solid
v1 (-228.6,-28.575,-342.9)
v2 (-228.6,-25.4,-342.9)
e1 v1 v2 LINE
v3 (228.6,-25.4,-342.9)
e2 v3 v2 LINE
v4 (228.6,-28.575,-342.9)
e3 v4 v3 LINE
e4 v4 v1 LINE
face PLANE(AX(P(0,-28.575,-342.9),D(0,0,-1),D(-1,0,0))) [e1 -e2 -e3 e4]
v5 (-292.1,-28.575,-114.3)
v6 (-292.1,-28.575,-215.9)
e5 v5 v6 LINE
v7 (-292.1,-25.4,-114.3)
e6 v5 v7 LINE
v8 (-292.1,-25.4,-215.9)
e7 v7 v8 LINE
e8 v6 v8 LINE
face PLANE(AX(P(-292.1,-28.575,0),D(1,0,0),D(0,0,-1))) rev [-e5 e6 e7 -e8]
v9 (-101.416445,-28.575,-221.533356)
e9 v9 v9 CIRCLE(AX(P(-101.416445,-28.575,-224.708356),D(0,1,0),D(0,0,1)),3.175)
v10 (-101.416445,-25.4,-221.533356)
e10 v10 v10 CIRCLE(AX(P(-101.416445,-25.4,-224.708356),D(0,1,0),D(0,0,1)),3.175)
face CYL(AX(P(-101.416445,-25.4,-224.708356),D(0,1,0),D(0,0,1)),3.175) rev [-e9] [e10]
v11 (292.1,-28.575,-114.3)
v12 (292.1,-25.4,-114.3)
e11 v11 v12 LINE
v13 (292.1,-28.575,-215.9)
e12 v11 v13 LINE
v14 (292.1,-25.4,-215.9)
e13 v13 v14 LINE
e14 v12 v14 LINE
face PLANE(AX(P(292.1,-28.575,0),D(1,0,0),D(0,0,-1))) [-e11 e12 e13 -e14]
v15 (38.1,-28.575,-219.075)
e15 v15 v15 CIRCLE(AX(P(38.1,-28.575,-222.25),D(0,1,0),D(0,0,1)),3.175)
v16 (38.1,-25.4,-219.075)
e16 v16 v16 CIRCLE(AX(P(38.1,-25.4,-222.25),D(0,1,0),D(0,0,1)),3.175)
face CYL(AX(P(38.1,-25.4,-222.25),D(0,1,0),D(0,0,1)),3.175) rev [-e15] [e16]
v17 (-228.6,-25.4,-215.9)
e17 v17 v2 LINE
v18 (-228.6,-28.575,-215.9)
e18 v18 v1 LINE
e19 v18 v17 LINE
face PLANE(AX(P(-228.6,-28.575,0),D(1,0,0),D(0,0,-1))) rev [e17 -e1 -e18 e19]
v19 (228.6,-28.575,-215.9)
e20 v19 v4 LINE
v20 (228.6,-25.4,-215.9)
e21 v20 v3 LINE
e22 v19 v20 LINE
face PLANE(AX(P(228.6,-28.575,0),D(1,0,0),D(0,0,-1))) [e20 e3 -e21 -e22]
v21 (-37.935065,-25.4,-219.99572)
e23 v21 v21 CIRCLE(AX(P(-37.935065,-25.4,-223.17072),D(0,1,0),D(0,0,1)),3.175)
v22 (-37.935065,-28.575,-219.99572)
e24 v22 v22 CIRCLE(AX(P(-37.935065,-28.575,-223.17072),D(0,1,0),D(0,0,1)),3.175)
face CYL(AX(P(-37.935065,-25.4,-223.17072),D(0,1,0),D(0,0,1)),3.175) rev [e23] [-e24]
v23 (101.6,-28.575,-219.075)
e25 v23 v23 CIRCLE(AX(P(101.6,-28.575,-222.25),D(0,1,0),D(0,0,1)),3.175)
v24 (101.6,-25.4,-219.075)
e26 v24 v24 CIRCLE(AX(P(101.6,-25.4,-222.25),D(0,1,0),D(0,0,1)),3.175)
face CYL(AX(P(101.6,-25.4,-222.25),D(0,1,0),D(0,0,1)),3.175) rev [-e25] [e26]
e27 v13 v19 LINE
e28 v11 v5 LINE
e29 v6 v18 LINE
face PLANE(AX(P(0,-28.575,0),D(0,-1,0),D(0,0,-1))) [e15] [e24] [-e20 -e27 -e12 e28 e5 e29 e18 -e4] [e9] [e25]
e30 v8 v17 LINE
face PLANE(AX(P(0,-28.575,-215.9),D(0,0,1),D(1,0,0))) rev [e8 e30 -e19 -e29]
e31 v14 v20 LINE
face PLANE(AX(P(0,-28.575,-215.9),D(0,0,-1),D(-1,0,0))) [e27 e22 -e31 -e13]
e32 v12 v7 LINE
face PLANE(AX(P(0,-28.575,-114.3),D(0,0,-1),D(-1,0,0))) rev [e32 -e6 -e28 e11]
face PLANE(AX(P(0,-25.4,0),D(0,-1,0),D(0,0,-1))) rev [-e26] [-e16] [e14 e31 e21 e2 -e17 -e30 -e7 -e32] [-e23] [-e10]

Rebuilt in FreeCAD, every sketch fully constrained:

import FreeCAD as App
import Part
import Sketcher
from FreeCAD import Vector
Q = App.Units.Quantity

doc = App.newDocument("Part")
body = doc.addObject("PartDesign::Body", "Body")

sketch1 = body.newObject("Sketcher::SketchObject", "Sketch")
sketch1.AttachmentSupport = (doc.getObject("XZ_Plane"), [""])
sketch1.MapMode = "FlatFace"
sketch1.AttachmentOffset = App.Placement(Vector(0, 0, 1 * 25.4), App.Rotation())
sketch1.addGeometry(Part.LineSegment(Vector(292, -216, 0), Vector(292, -114, 0)), False)
sketch1.addGeometry(Part.LineSegment(Vector(292, -114, 0), Vector(-292, -114, 0)), False)
sketch1.addGeometry(Part.LineSegment(Vector(-292, -114, 0), Vector(-292, -216, 0)), False)
sketch1.addGeometry(Part.LineSegment(Vector(-292, -216, 0), Vector(-229, -216, 0)), False)
sketch1.addGeometry(Part.LineSegment(Vector(-229, -216, 0), Vector(-229, -343, 0)), False)
sketch1.addGeometry(Part.LineSegment(Vector(-229, -343, 0), Vector(229, -343, 0)), False)
sketch1.addGeometry(Part.LineSegment(Vector(229, -343, 0), Vector(229, -216, 0)), False)
sketch1.addGeometry(Part.LineSegment(Vector(229, -216, 0), Vector(292, -216, 0)), False)
sketch1.addConstraint(Sketcher.Constraint("Coincident", 0, 2, 1, 1))
sketch1.addConstraint(Sketcher.Constraint("Coincident", 1, 2, 2, 1))
sketch1.addConstraint(Sketcher.Constraint("Coincident", 2, 2, 3, 1))
sketch1.addConstraint(Sketcher.Constraint("Coincident", 3, 2, 4, 1))
sketch1.addConstraint(Sketcher.Constraint("Coincident", 4, 2, 5, 1))
sketch1.addConstraint(Sketcher.Constraint("Coincident", 5, 2, 6, 1))
sketch1.addConstraint(Sketcher.Constraint("Coincident", 6, 2, 7, 1))
sketch1.addConstraint(Sketcher.Constraint("Coincident", 7, 2, 0, 1))
sketch1.addConstraint(Sketcher.Constraint("Vertical", 0))
sketch1.addConstraint(Sketcher.Constraint("Horizontal", 1))
sketch1.addConstraint(Sketcher.Constraint("Vertical", 2))
sketch1.addConstraint(Sketcher.Constraint("Horizontal", 3))
sketch1.addConstraint(Sketcher.Constraint("Vertical", 4))
sketch1.addConstraint(Sketcher.Constraint("Horizontal", 5))
sketch1.addConstraint(Sketcher.Constraint("Vertical", 6))
sketch1.addConstraint(Sketcher.Constraint("Horizontal", 7))
sketch1.addConstraint(Sketcher.Constraint("Symmetric", 3, 2, 6, 2, -2))
sketch1.addConstraint(Sketcher.Constraint("Equal", 3, 7))
sketch1.addConstraint(Sketcher.Constraint("DistanceX", 1, 2, 1, 1, Q("23 in")))
sketch1.addConstraint(Sketcher.Constraint("DistanceX", 5, 1, 5, 2, Q("18 in")))
sketch1.addConstraint(Sketcher.Constraint("DistanceY", 0, 1, 0, 2, Q("4 in")))
sketch1.addConstraint(Sketcher.Constraint("DistanceY", 4, 2, 4, 1, Q("5 in")))
sketch1.addConstraint(Sketcher.Constraint("DistanceY", 0, 2, -1, 1, Q("4.5 in")))
pad1 = body.newObject("PartDesign::Pad", "Pad")
pad1.Profile = sketch1
pad1.Length = Q("0.125 in")

sketch2 = body.newObject("Sketcher::SketchObject", "Sketch001")
sketch2.AttachmentSupport = (doc.getObject("XZ_Plane"), [""])
sketch2.MapMode = "FlatFace"
sketch2.AttachmentOffset = App.Placement(Vector(0, 0, 1 * 25.4), App.Rotation())
sketch2.addGeometry(Part.Circle(Vector(-37.9, -223.2, 0), Vector(0, 0, 1), 3.2), False)
sketch2.addGeometry(Part.Circle(Vector(-101.4, -224.7, 0), Vector(0, 0, 1), 3.2), False)
sketch2.addGeometry(Part.Circle(Vector(38.1, -222.2, 0), Vector(0, 0, 1), 3.2), False)
sketch2.addGeometry(Part.Circle(Vector(101.6, -222.2, 0), Vector(0, 0, 1), 3.2), False)
sketch2.addConstraint(Sketcher.Constraint("Equal", 0, 1))
sketch2.addConstraint(Sketcher.Constraint("Equal", 1, 2))
sketch2.addConstraint(Sketcher.Constraint("Equal", 2, 3))
sketch2.addConstraint(Sketcher.Constraint("Horizontal", 2, 3, 3, 3))
sketch2.addConstraint(Sketcher.Constraint("Diameter", 0, Q("0.25 in")))
sketch2.addConstraint(Sketcher.Constraint("DistanceX", -1, 1, 3, 3, Q("4 in")))
sketch2.addConstraint(Sketcher.Constraint("DistanceX", -1, 1, 2, 3, Q("1.5 in")))
sketch2.addConstraint(Sketcher.Constraint("DistanceY", 2, 3, -1, 1, Q("8.75 in")))
sketch2.addConstraint(Sketcher.Constraint("DistanceY", 0, 3, -1, 1, 223.17072))
sketch2.addConstraint(Sketcher.Constraint("DistanceX", 1, 3, 0, 3, 63.481381))
sketch2.addConstraint(Sketcher.Constraint("DistanceX", 0, 3, -1, 1, 37.935065))
sketch2.addConstraint(Sketcher.Constraint("DistanceY", 1, 3, -1, 1, 224.708356))
doc.recompute()
hole = body.newObject("PartDesign::Hole", "Hole")
hole.Profile = sketch2
hole.ThreadType = "None"
hole.Diameter = Q("0.25 in")
hole.DepthType = "ThroughAll"
hole.Reversed = True

doc.recompute()
